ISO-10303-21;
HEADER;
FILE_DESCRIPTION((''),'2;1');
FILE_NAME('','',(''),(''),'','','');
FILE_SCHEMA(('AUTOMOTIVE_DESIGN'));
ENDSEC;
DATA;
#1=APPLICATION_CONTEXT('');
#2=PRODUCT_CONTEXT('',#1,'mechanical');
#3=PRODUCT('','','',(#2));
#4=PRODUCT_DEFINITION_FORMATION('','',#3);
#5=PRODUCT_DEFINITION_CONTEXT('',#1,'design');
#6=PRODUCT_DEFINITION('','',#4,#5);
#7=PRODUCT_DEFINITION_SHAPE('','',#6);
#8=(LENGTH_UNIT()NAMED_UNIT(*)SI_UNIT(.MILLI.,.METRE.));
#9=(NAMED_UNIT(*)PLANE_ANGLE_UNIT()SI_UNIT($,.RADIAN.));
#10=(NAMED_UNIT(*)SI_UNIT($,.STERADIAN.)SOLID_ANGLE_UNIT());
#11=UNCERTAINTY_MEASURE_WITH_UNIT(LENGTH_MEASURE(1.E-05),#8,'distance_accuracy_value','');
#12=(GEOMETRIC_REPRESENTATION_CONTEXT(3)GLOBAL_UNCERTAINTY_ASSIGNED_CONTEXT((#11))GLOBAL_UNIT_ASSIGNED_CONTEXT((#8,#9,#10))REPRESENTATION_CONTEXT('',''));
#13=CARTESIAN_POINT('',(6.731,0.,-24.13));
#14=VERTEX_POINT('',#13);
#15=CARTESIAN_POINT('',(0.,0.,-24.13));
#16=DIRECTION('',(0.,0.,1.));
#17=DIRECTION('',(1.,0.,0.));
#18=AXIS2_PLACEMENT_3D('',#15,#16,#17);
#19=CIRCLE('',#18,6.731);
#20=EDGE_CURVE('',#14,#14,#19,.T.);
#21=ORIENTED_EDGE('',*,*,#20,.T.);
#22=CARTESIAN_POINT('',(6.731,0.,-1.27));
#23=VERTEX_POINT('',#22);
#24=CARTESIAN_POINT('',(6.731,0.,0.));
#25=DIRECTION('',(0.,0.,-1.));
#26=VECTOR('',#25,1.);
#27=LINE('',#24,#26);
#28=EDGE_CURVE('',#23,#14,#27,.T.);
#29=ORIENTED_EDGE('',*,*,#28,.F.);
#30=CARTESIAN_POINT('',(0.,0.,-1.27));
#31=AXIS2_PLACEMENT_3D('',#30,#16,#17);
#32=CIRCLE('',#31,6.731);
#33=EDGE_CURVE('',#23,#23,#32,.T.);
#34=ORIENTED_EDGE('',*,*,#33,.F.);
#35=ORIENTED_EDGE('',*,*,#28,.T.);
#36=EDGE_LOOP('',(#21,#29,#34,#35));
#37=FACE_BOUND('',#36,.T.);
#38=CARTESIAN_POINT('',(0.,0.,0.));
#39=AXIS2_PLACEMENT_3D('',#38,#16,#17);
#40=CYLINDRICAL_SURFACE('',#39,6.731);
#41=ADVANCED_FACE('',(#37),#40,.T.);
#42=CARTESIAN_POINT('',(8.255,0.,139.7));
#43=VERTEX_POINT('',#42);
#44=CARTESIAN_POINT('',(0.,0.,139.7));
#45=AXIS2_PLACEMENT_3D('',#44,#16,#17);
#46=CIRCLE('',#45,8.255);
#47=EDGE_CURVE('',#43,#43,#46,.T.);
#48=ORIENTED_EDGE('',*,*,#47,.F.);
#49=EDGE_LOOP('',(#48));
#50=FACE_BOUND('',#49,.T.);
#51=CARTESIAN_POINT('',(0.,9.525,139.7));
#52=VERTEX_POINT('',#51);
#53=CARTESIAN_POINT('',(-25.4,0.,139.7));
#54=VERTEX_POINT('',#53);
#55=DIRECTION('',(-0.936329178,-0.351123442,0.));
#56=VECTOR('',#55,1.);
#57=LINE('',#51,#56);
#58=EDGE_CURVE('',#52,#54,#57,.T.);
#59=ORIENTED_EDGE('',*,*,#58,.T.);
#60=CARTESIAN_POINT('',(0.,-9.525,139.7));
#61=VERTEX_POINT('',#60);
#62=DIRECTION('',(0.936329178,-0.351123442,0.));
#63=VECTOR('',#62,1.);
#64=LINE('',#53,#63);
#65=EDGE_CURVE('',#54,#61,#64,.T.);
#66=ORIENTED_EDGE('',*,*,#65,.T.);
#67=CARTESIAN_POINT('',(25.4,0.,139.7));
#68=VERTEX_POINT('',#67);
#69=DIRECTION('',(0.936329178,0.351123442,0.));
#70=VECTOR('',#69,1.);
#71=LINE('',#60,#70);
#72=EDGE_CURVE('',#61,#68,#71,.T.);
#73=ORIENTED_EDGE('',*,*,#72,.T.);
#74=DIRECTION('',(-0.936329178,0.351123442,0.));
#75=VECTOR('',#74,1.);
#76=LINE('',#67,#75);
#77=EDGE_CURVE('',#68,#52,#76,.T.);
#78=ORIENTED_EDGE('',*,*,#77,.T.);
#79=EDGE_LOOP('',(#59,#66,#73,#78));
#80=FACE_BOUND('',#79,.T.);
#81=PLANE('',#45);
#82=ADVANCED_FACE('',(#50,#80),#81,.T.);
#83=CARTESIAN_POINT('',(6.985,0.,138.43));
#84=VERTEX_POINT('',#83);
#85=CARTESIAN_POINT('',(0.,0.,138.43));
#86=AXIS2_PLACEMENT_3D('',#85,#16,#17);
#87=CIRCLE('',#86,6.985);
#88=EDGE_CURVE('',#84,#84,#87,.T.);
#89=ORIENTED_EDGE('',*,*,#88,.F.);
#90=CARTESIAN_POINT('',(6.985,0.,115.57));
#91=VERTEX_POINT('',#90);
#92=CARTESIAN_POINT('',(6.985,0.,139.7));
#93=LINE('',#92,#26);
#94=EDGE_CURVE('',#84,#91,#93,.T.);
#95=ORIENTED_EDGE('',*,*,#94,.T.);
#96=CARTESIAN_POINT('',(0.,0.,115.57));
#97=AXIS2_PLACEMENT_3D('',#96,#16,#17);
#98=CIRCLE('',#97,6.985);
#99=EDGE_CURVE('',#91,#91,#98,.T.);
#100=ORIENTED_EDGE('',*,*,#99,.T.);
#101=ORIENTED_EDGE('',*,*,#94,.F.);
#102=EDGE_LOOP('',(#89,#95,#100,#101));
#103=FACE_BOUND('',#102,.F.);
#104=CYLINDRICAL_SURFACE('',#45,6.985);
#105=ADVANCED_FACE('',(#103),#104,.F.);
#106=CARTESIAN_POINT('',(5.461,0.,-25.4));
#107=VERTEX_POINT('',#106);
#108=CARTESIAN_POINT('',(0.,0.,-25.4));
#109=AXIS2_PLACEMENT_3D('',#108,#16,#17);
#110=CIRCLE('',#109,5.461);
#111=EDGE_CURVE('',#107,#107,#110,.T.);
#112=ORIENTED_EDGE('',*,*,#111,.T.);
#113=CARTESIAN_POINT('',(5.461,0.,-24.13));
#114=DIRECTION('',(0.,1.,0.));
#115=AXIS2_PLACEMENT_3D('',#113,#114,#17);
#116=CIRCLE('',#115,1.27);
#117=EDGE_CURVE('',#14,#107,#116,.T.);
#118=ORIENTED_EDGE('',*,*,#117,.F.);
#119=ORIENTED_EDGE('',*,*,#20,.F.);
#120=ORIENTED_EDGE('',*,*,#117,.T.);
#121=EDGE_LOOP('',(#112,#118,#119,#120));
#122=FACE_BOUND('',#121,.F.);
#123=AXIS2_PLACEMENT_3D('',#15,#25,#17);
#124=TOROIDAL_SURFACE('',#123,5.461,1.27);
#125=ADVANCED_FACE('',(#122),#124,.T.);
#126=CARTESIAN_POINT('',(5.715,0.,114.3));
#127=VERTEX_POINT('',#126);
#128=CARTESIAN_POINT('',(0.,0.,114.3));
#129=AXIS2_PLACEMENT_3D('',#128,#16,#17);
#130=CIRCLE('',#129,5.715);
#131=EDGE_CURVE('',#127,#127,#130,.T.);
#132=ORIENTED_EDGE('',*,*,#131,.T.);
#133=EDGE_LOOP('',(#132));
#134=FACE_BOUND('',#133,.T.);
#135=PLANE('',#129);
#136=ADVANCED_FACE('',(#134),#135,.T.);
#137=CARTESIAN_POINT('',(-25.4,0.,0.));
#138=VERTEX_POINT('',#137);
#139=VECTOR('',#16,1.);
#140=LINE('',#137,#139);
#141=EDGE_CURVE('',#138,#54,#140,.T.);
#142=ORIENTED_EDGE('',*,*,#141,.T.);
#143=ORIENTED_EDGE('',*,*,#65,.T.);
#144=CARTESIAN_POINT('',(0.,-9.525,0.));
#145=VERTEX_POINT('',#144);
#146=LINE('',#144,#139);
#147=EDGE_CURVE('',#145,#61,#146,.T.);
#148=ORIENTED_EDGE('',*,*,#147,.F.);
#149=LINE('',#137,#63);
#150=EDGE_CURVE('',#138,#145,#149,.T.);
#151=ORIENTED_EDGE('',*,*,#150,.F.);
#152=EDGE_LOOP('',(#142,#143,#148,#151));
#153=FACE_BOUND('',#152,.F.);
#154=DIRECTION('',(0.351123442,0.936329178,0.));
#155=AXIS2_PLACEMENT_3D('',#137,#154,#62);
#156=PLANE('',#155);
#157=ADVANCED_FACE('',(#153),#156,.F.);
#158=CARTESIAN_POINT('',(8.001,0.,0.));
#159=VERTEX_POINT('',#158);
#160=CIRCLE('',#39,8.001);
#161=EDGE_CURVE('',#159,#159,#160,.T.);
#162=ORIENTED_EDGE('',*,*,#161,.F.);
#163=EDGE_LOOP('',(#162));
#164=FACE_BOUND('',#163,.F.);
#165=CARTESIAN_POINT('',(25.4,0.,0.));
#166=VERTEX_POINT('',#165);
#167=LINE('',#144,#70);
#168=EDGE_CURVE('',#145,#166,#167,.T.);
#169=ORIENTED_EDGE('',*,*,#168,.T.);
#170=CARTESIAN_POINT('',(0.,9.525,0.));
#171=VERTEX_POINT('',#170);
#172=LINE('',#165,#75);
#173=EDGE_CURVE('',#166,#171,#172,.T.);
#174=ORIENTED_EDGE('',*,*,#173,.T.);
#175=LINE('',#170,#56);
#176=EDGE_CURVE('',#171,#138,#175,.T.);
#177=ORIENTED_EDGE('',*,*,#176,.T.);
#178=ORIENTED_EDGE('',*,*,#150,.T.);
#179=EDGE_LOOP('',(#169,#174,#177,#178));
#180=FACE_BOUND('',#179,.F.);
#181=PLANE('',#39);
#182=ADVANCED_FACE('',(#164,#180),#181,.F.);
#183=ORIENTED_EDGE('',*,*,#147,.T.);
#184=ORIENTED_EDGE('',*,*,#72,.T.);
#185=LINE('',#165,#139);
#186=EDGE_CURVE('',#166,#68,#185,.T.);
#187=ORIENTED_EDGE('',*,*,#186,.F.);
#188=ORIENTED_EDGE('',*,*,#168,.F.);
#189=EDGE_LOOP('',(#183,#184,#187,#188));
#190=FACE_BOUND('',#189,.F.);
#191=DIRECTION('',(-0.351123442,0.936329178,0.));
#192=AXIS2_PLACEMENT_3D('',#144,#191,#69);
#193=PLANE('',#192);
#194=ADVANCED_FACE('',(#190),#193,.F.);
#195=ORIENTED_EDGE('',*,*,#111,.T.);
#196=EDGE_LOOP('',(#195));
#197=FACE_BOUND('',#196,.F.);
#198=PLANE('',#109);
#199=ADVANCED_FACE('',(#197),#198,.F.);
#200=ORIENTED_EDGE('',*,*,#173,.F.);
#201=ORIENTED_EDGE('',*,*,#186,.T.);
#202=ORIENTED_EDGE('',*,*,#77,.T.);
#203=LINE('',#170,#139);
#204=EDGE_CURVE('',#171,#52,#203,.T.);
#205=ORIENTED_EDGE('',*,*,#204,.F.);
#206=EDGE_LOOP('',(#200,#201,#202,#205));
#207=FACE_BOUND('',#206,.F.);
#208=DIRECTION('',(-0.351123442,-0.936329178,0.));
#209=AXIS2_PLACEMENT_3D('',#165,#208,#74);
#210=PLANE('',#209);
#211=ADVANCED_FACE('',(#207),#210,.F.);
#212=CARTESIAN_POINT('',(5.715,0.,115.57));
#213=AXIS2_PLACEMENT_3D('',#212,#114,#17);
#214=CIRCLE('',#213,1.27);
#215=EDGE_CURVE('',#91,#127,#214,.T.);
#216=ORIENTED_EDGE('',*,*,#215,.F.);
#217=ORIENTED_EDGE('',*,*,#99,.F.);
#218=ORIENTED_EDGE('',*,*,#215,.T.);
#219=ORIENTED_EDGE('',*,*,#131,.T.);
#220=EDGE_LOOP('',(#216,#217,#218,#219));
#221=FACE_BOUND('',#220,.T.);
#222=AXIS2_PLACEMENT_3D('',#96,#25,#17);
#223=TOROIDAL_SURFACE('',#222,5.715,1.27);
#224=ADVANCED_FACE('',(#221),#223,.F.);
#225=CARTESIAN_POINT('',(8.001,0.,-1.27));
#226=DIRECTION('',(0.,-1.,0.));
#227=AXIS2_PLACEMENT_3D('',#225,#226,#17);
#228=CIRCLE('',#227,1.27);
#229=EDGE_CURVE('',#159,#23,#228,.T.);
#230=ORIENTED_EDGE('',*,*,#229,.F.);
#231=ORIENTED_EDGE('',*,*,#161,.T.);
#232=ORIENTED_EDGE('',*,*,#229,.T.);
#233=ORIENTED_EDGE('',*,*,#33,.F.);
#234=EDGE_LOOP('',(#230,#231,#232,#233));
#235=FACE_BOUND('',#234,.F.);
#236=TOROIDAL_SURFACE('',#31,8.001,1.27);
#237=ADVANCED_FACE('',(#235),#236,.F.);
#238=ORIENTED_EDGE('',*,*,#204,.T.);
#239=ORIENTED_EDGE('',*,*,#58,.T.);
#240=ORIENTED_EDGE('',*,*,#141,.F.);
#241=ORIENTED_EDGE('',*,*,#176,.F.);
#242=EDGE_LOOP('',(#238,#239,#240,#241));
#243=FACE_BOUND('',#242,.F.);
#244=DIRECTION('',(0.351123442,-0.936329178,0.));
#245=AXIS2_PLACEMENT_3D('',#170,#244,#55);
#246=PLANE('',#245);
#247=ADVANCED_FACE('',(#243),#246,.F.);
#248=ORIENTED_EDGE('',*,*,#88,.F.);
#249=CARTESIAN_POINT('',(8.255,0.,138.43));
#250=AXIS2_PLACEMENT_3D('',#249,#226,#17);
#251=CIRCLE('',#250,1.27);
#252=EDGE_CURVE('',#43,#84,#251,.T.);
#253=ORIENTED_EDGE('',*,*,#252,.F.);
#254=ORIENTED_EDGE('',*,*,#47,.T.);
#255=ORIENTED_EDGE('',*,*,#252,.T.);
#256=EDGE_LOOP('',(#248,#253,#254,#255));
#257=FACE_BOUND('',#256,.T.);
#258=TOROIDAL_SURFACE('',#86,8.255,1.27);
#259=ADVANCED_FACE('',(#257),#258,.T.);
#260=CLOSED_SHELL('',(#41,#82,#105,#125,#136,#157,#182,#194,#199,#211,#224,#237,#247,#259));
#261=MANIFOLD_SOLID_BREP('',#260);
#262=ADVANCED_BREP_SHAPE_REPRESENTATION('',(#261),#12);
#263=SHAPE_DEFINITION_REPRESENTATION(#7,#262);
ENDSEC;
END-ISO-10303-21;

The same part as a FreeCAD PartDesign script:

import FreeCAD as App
import Part
import Sketcher
from FreeCAD import Vector
Q = App.Units.Quantity


def edges_at(feature, points):
    """Names of the edges that pass closest to the given points."""
    edges = feature.Shape.Edges
    near = lambda p: min(range(len(edges)), key=lambda i: edges[i].distToShape(Part.Vertex(*p))[0])
    return sorted({f"Edge{near(p) + 1}" for p in points})


def add_polygon(sketch, points):
    """Adds a closed chain of lines whose ends are joined by coincident constraints."""
    first, n = sketch.GeometryCount, len(points)
    for a, b in zip(points, points[1:] + points[:1]):
        sketch.addGeometry(Part.LineSegment(App.Vector(*a, 0), App.Vector(*b, 0)), False)
    for i in range(n):
        sketch.addConstraint(Sketcher.Constraint("Coincident", first + i, 2, first + (i + 1) % n, 1))

doc = App.newDocument("Part")
body = doc.addObject("PartDesign::Body", "Body")

sketch1 = body.newObject("Sketcher::SketchObject", "Sketch")
sketch1.AttachmentSupport = (doc.getObject("XY_Plane"), [""])
sketch1.MapMode = "FlatFace"
add_polygon(sketch1, [(25, 0), (0, 10), (-25, 0), (0, -10)])
sketch1.addConstraint([
    Sketcher.Constraint("Symmetric", 0, 2, 2, 2, -1, 1),
    Sketcher.Constraint("Symmetric", 1, 2, 3, 2, -1, 1),
    Sketcher.Constraint("PointOnObject", 0, 2, -2),
    Sketcher.Constraint("PointOnObject", 1, 2, -1),
    Sketcher.Constraint("DistanceX", 1, 2, -1, 1, Q("1 in")),
    Sketcher.Constraint("DistanceY", 2, 2, 0, 2, Q("0.75 in")),
])
pad1 = body.newObject("PartDesign::Pad", "Pad")
pad1.Profile = sketch1
pad1.Length = Q("5.5 in")

sketch2 = body.newObject("Sketcher::SketchObject", "Sketch001")
sketch2.AttachmentSupport = (doc.getObject("XY_Plane"), [""])
sketch2.MapMode = "FlatFace"
sketch2.addGeometry(Part.Circle(Vector(0, 0, 0), Vector(0, 0, 1), 7), False)
sketch2.addConstraint([
    Sketcher.Constraint("Coincident", 0, 3, -1, 1),
    Sketcher.Constraint("Diameter", 0, Q("0.53 in")),
])
pad2 = body.newObject("PartDesign::Pad", "Pad001")
pad2.Profile = sketch2
pad2.Length = Q("1 in")
pad2.Reversed = True

sketch3 = body.newObject("Sketcher::SketchObject", "Sketch002")
sketch3.AttachmentSupport = (doc.getObject("XY_Plane"), [""])
sketch3.MapMode = "FlatFace"
sketch3.AttachmentOffset = App.Placement(Vector(0, 0, 5.5 * 25.4), App.Rotation())
sketch3.addGeometry(Part.Circle(Vector(0, 0, 0), Vector(0, 0, 1), 7), False)
sketch3.addConstraint([
    Sketcher.Constraint("Coincident", 0, 3, -1, 1),
    Sketcher.Constraint("Diameter", 0, Q("0.55 in")),
])
pocket1 = body.newObject("PartDesign::Pocket", "Pocket")
pocket1.Profile = sketch3
pocket1.Length = Q("1 in")
doc.recompute()

fillet = body.newObject("PartDesign::Fillet", "Fillet")
fillet.Base = (pocket1, edges_at(pocket1, [(-6.985, 0, 114.3), (-6.985, 0, 139.7)]))
fillet.Radius = Q("0.05 in")
doc.recompute()

fillet2 = body.newObject("PartDesign::Fillet", "Fillet001")
fillet2.Base = (fillet, edges_at(fillet, [(-6.731, 0, -25.4), (-6.731, 0, 0)]))
fillet2.Radius = Q("0.05 in")

doc.recompute()
